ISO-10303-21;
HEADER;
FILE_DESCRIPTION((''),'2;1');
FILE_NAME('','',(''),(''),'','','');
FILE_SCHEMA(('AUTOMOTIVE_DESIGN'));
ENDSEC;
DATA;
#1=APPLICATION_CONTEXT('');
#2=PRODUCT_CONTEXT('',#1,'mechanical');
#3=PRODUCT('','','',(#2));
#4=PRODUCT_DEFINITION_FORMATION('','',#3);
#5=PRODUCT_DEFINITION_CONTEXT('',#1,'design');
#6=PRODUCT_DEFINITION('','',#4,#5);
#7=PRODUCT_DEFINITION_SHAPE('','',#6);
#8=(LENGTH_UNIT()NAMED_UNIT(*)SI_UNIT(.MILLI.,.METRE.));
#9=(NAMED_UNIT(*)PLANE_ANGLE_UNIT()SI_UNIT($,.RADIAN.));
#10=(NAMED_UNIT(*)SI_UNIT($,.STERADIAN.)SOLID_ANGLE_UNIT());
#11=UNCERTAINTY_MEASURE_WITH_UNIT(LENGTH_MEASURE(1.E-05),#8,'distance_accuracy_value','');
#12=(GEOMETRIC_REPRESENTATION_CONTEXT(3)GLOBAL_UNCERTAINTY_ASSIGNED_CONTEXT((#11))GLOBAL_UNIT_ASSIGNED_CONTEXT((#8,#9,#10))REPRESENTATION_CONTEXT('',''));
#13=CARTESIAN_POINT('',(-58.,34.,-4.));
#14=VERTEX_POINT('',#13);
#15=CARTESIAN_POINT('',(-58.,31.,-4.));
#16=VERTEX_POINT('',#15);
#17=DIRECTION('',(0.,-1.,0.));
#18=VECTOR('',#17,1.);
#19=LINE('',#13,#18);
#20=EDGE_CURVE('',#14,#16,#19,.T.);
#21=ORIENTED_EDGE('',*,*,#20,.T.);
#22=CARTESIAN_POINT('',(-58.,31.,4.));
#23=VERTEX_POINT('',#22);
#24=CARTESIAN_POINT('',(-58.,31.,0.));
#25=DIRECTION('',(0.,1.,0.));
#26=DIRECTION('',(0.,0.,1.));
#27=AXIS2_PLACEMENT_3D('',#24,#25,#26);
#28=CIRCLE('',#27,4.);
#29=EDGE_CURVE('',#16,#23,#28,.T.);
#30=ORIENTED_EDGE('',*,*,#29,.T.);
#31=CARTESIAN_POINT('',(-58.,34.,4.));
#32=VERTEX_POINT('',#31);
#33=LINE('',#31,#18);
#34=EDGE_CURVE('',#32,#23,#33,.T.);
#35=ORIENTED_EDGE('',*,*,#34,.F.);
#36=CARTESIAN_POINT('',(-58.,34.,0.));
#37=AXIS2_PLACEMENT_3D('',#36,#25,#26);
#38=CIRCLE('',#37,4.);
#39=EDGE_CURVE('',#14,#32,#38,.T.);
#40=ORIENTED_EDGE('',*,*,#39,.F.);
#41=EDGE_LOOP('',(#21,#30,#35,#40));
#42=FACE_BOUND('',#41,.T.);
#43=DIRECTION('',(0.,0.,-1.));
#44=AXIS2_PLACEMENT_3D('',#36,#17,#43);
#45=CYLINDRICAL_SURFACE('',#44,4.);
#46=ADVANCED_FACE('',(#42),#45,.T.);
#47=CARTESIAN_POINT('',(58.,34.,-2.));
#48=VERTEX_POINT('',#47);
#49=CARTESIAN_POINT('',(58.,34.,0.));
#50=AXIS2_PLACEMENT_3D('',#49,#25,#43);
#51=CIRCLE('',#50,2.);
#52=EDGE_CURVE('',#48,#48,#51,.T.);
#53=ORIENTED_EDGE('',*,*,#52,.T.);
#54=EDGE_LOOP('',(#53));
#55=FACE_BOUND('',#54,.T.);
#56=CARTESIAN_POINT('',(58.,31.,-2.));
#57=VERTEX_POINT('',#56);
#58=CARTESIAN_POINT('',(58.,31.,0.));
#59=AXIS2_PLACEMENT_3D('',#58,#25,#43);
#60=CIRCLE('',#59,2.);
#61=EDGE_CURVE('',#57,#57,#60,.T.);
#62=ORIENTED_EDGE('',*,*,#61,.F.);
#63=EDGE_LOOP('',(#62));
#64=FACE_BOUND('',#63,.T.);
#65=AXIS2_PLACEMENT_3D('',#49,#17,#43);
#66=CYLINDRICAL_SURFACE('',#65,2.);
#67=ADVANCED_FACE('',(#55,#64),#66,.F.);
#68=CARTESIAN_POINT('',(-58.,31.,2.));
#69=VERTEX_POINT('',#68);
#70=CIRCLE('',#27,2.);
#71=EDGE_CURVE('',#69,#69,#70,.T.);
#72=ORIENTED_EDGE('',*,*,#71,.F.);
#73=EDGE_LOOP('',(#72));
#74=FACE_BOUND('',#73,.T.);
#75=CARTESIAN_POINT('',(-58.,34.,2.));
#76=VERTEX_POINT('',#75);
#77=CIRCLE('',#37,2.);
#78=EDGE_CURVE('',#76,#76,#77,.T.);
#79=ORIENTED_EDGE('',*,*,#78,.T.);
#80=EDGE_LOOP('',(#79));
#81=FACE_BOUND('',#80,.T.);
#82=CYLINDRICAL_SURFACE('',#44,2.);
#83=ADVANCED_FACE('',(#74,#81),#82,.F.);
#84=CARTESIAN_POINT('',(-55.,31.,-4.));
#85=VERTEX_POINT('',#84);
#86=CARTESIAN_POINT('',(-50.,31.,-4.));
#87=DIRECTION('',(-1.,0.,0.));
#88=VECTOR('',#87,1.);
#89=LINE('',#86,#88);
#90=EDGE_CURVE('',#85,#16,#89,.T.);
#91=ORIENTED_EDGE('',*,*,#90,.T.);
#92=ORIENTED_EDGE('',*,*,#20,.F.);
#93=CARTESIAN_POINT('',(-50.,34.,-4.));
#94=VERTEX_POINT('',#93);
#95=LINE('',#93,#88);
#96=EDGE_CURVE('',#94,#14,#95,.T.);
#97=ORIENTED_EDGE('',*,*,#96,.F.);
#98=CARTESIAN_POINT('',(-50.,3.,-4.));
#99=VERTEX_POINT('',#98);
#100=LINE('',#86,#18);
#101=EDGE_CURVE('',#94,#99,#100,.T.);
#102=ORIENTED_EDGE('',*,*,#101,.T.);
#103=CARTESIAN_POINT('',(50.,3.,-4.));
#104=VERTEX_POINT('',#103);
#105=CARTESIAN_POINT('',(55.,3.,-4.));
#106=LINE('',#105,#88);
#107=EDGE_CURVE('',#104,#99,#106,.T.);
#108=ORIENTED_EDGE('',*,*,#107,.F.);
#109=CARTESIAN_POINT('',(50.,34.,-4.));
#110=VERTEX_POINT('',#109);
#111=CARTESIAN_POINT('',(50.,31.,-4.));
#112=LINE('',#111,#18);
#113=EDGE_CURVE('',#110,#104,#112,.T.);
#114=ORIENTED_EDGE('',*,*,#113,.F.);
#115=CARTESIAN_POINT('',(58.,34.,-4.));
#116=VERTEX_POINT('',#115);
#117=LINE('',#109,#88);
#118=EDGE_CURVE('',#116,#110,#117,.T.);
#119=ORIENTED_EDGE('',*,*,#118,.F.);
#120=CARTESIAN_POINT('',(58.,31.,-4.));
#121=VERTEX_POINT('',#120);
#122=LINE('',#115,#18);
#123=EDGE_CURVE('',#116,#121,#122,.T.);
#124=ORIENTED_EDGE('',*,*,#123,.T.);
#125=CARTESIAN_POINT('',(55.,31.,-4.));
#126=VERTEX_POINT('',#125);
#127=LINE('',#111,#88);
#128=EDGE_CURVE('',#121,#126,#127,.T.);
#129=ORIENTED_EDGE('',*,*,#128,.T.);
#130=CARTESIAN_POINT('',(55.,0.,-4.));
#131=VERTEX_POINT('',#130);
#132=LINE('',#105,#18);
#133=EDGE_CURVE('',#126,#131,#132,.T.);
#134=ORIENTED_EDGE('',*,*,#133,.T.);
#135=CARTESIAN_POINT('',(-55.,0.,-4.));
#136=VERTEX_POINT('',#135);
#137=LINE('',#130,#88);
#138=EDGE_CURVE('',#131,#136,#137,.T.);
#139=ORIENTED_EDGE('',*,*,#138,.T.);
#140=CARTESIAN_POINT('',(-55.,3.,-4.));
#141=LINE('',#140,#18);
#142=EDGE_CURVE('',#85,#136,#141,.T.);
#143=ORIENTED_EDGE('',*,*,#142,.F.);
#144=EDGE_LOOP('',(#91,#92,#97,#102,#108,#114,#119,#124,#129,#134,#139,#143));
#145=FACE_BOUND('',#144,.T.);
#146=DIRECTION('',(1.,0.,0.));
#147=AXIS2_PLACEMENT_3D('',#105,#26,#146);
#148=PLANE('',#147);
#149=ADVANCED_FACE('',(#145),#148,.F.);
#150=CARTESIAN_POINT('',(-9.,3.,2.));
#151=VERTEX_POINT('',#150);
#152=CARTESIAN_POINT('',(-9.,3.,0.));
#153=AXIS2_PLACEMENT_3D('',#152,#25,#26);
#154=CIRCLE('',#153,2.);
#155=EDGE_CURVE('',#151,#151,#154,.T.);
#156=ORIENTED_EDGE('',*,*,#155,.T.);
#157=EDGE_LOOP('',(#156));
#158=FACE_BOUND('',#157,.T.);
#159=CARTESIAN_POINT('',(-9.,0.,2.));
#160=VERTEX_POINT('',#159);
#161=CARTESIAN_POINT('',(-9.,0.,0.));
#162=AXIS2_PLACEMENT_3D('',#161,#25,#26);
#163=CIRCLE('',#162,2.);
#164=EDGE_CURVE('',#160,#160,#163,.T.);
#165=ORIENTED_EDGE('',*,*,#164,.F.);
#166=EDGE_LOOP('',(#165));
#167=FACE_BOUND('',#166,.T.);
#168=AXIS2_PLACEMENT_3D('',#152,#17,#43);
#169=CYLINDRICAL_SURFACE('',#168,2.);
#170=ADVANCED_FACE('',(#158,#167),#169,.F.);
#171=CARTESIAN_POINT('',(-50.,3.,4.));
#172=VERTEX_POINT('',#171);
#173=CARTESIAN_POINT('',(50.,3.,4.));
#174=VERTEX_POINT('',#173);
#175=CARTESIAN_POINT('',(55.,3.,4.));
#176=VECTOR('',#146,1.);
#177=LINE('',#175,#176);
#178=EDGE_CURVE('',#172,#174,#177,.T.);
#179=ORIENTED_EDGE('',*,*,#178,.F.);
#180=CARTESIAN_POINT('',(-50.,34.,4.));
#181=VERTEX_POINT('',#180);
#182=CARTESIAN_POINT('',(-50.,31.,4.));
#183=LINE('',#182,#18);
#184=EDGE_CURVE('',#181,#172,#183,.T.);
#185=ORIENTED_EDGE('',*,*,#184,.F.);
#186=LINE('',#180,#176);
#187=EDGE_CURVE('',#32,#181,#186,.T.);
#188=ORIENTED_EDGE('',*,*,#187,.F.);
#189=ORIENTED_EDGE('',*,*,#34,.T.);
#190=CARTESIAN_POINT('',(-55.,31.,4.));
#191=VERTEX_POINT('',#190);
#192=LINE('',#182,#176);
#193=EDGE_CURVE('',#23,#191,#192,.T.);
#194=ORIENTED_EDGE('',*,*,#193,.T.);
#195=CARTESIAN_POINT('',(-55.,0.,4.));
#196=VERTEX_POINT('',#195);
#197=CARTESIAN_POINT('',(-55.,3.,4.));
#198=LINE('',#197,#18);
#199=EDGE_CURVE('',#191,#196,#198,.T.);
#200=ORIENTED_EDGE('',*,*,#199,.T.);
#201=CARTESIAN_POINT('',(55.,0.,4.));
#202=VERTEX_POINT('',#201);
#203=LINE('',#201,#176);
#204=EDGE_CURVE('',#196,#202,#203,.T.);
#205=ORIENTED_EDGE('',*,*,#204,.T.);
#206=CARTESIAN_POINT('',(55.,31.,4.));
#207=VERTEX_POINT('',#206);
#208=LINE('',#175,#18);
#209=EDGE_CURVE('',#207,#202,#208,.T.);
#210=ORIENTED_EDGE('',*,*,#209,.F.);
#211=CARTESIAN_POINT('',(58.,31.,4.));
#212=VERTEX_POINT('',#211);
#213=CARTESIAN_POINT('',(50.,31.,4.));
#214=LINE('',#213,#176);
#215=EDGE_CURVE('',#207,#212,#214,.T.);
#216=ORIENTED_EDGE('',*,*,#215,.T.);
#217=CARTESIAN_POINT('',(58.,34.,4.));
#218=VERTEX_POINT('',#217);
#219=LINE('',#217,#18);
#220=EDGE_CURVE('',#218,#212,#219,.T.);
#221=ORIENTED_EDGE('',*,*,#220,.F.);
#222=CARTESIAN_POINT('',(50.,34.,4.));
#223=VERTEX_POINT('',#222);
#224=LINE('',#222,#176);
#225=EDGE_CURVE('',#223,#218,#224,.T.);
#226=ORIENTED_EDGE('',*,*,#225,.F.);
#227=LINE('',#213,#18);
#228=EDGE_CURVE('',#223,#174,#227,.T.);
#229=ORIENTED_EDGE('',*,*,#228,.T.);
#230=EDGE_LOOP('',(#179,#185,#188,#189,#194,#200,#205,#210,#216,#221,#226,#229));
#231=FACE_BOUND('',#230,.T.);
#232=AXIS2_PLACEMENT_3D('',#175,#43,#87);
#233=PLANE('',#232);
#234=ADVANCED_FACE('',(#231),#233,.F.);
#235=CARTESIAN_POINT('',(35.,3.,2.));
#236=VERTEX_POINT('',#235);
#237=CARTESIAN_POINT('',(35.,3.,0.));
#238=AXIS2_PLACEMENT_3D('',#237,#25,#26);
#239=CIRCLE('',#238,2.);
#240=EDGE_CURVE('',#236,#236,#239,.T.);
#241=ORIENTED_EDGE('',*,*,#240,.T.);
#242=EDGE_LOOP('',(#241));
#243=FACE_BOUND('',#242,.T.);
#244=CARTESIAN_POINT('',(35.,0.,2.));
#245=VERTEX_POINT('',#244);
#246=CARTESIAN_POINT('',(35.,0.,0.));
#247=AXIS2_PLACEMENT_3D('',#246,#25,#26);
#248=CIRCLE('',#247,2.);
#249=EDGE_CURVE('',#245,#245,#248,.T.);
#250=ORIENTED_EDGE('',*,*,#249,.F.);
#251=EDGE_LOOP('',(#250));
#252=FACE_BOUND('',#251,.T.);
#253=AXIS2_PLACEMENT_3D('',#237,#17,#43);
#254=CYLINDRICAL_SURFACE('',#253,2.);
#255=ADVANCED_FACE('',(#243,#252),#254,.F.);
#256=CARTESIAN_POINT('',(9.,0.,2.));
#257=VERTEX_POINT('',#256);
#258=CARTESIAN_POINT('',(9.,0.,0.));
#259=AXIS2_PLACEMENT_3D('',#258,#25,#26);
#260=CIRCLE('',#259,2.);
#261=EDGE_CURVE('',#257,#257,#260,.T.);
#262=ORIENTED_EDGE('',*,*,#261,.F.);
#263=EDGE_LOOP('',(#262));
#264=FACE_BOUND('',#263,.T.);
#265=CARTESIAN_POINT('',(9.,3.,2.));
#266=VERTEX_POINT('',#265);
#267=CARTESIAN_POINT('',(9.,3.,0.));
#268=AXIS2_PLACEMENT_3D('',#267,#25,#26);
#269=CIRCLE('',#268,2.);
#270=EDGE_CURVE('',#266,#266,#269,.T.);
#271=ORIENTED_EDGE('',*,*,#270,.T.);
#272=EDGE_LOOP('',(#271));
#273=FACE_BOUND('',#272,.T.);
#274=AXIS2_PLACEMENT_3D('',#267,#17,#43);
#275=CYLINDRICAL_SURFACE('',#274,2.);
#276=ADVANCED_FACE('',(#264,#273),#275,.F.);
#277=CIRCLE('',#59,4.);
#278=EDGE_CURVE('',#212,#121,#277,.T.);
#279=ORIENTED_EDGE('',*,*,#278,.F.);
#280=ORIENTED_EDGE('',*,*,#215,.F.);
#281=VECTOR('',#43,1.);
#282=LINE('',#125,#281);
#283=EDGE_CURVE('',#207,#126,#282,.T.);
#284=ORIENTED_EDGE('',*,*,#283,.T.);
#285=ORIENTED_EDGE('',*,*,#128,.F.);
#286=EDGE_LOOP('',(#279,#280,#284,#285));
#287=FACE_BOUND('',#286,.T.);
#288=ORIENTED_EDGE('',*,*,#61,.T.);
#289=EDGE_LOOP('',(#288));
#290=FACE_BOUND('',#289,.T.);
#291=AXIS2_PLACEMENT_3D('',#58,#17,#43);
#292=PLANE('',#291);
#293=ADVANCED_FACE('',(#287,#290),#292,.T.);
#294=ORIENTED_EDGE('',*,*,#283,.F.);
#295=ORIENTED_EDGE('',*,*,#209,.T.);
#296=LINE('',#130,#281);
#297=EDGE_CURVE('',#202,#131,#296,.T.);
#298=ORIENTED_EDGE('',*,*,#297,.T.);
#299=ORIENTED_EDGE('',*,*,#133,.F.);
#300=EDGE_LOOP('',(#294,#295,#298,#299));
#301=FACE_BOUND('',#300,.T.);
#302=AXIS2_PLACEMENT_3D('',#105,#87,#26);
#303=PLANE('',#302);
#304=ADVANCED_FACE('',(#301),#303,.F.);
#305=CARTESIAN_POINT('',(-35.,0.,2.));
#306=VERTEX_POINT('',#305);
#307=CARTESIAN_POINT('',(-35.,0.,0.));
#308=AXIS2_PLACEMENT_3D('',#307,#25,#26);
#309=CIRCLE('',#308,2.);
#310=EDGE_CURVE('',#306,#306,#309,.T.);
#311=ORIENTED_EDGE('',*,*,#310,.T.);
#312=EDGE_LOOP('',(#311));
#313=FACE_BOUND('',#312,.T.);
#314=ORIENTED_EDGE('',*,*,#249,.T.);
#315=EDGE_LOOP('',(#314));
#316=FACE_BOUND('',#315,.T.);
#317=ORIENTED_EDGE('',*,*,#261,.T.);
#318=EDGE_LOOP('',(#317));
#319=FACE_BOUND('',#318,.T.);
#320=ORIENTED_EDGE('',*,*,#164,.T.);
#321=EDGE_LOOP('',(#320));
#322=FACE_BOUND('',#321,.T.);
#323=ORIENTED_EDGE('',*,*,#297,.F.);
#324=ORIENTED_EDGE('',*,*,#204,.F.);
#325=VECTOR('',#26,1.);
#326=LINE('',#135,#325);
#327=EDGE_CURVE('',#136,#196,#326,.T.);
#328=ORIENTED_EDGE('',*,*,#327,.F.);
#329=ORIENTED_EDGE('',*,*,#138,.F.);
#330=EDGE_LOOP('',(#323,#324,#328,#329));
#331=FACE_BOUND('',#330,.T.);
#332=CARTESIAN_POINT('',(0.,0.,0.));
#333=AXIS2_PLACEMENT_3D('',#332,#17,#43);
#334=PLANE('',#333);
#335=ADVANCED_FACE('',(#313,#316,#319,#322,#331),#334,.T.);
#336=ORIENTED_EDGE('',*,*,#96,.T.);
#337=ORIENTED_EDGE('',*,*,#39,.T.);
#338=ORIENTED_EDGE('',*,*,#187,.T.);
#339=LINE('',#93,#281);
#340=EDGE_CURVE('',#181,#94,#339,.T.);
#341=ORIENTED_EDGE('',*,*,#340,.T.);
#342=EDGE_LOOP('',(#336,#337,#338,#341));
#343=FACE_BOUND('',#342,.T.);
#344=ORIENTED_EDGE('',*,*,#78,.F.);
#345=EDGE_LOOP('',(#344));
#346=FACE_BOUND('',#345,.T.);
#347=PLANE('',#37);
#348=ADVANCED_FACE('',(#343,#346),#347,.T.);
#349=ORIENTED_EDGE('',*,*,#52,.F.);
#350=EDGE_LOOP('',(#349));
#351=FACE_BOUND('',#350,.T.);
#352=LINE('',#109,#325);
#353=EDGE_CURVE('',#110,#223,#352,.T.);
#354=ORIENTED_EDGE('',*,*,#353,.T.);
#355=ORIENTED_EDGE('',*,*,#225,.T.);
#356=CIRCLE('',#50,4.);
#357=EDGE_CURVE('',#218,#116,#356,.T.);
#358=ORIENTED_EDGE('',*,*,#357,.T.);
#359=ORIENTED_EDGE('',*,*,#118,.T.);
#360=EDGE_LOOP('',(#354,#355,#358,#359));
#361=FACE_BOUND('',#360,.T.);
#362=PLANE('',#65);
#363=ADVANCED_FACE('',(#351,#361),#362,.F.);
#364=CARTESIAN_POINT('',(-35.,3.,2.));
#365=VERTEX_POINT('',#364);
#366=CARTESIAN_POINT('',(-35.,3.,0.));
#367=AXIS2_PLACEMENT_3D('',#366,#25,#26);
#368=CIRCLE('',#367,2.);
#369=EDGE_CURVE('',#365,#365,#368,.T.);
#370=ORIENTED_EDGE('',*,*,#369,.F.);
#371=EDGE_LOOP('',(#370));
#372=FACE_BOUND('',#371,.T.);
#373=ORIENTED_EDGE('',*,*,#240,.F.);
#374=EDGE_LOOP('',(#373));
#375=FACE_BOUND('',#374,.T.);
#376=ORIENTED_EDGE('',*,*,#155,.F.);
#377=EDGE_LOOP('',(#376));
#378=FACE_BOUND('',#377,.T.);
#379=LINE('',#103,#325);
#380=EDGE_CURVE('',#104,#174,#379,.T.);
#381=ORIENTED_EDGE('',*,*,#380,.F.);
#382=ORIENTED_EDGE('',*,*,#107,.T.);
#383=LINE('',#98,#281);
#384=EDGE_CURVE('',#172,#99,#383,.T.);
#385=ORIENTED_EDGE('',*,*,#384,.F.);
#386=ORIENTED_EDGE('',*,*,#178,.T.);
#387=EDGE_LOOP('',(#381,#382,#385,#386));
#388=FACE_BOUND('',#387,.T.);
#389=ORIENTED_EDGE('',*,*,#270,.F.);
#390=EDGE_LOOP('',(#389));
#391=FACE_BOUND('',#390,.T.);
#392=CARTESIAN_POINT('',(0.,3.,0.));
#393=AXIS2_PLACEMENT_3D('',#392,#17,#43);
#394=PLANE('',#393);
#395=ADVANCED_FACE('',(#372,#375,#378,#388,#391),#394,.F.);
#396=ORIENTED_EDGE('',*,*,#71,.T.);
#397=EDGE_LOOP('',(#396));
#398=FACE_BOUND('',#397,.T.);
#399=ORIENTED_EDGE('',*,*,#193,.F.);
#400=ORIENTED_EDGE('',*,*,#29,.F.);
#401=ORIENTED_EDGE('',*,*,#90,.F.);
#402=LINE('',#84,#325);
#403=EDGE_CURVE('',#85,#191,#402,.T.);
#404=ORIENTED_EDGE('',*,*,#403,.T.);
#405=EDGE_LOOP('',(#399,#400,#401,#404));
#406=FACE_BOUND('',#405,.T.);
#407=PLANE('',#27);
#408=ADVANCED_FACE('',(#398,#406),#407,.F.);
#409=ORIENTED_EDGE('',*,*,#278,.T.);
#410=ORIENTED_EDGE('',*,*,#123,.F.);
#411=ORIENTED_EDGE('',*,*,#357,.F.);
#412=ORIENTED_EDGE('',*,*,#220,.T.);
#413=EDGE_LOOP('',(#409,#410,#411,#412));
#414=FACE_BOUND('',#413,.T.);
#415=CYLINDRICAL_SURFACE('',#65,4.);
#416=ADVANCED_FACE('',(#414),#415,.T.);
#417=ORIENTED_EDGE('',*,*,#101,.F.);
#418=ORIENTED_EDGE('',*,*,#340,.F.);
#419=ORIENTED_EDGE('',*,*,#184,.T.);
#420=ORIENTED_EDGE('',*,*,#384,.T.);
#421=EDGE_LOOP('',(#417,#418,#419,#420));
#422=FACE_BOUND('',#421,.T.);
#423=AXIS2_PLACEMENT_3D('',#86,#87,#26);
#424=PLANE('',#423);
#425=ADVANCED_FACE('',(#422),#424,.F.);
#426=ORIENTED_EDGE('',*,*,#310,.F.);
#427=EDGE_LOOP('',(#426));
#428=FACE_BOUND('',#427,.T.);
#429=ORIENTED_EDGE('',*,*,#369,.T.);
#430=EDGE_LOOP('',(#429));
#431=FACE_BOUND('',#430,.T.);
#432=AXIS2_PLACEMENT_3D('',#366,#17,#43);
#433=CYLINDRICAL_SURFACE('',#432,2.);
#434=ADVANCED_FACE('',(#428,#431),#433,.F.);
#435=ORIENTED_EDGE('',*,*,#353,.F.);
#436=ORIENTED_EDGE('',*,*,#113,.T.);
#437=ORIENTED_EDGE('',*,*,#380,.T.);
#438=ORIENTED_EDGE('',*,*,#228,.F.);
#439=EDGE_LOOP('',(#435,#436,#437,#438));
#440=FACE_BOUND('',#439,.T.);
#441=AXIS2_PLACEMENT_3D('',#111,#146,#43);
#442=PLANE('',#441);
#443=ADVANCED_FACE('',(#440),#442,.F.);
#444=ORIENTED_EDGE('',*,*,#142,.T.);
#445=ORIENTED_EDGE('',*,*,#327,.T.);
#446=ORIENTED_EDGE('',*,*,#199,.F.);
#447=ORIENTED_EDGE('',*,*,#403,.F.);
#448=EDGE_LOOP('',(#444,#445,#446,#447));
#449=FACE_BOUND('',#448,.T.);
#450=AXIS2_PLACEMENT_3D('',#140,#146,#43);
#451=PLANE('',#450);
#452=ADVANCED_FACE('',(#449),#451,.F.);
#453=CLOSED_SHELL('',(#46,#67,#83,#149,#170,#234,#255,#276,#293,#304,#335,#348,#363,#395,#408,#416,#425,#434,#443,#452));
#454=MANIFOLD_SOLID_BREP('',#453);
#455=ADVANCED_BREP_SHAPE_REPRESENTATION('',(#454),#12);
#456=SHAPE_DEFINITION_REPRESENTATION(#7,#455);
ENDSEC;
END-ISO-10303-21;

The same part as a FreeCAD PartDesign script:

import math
import FreeCAD as App
import Part
import Sketcher


def add_polygon(sketch, points):
    """Adds a closed chain of lines whose ends are joined by coincident constraints."""
    first, n = sketch.GeometryCount, len(points)
    for a, b in zip(points, points[1:] + points[:1]):
        sketch.addGeometry(Part.LineSegment(App.Vector(*a, 0), App.Vector(*b, 0)), False)
    for i in range(n):
        sketch.addConstraint(Sketcher.Constraint("Coincident", first + i, 2, first + (i + 1) % n, 1))

doc = App.newDocument("Part")
body = doc.addObject("PartDesign::Body", "Body")

sketch1 = body.newObject("Sketcher::SketchObject", "Sketch")
sketch1.AttachmentSupport = (doc.getObject("XZ_Plane"), [""])
sketch1.MapMode = "FlatFace"
add_polygon(sketch1, [(-55, -4), (-55, 4), (55, 4), (55, -4)])
sketch1.addGeometry(Part.Circle(App.Vector(-35, 0, 0), App.Vector(0, 0, 1), 2), False)
sketch1.addGeometry(Part.Circle(App.Vector(-9, 0, 0), App.Vector(0, 0, 1), 2), False)
sketch1.addGeometry(Part.Circle(App.Vector(9, 0, 0), App.Vector(0, 0, 1), 2), False)
sketch1.addGeometry(Part.Circle(App.Vector(35, 0, 0), App.Vector(0, 0, 1), 2), False)
sketch1.addConstraint([
    Sketcher.Constraint("Vertical", 0),
    Sketcher.Constraint("Horizontal", 1),
    Sketcher.Constraint("Vertical", 2),
    Sketcher.Constraint("Horizontal", 3),
    Sketcher.Constraint("Equal", 4, 5),
    Sketcher.Constraint("Equal", 5, 6),
    Sketcher.Constraint("Equal", 6, 7),
    Sketcher.Constraint("Symmetric", 5, 3, 6, 3, -1, 1),
    Sketcher.Constraint("Symmetric", 4, 3, 7, 3, -1, 1),
    Sketcher.Constraint("Symmetric", 0, 2, 2, 2, -1, 1),
    Sketcher.Constraint("PointOnObject", 4, 3, -1),
    Sketcher.Constraint("PointOnObject", 5, 3, -1),
    Sketcher.Constraint("Diameter", 4, 4.0),
    Sketcher.Constraint("DistanceX", 1, 1, 1, 2, 110.0),
    Sketcher.Constraint("DistanceY", 0, 1, 0, 2, 8.0),
    Sketcher.Constraint("DistanceX", 4, 3, -1, 1, 35.0),
    Sketcher.Constraint("DistanceX", 5, 3, -1, 1, 9.0),
])
pad1 = body.newObject("PartDesign::Pad", "Pad")
pad1.Profile = sketch1
pad1.Length = 3
pad1.Reversed = True

sketch2 = body.newObject("Sketcher::SketchObject", "Sketch001")
sketch2.AttachmentSupport = (doc.getObject("XZ_Plane"), [""])
sketch2.MapMode = "FlatFace"
sketch2.AttachmentOffset = App.Placement(App.Vector(0, 0, -3), App.Rotation())
add_polygon(sketch2, [(-55, -4), (-55, 4), (-50, 4), (-50, -4)])
add_polygon(sketch2, [(50, -4), (50, 4), (55, 4), (55, -4)])
sketch2.addConstraint([
    Sketcher.Constraint("Vertical", 0),
    Sketcher.Constraint("Horizontal", 1),
    Sketcher.Constraint("Vertical", 2),
    Sketcher.Constraint("Horizontal", 3),
    Sketcher.Constraint("Vertical", 4),
    Sketcher.Constraint("Horizontal", 5),
    Sketcher.Constraint("Vertical", 6),
    Sketcher.Constraint("Horizontal", 7),
    Sketcher.Constraint("Symmetric", 2, 2, 4, 2, -1, 1),
    Sketcher.Constraint("Symmetric", 0, 2, 6, 2, -1, 1),
    Sketcher.Constraint("Horizontal", 1, 2, 4, 2),
    Sketcher.Constraint("DistanceX", 1, 1, 1, 2, 5.0),
    Sketcher.Constraint("DistanceY", 0, 1, 0, 2, 8.0),
    Sketcher.Constraint("DistanceX", 0, 2, -1, 1, 55.0),
])
pad2 = body.newObject("PartDesign::Pad", "Pad001")
pad2.Profile = sketch2
pad2.Length = 28
pad2.Reversed = True

sketch3 = body.newObject("Sketcher::SketchObject", "Sketch002")
sketch3.AttachmentSupport = (doc.getObject("XZ_Plane"), [""])
sketch3.MapMode = "FlatFace"
sketch3.AttachmentOffset = App.Placement(App.Vector(0, 0, -31), App.Rotation())
sketch3.addGeometry([
    Part.LineSegment(App.Vector(-50, -4, 0), App.Vector(-58, -4, 0)),
    Part.ArcOfCircle(Part.Circle(App.Vector(-58, 0, 0), App.Vector(0, 0, 1), 4), math.radians(90), math.radians(270)),
    Part.LineSegment(App.Vector(-58, 4, 0), App.Vector(-50, 4, 0)),
    Part.LineSegment(App.Vector(-50, 4, 0), App.Vector(-50, -4, 0)),
    Part.Circle(App.Vector(-58, 0, 0), App.Vector(0, 0, 1), 2),
    Part.LineSegment(App.Vector(58, -4, 0), App.Vector(50, -4, 0)),
    Part.LineSegment(App.Vector(50, -4, 0), App.Vector(50, 4, 0)),
    Part.LineSegment(App.Vector(50, 4, 0), App.Vector(58, 4, 0)),
    Part.ArcOfCircle(Part.Circle(App.Vector(58, 0, 0), App.Vector(0, 0, 1), 4), math.radians(-90), math.radians(90)),
    Part.Circle(App.Vector(58, 0, 0), App.Vector(0, 0, 1), 2),
], False)
sketch3.addConstraint([
    Sketcher.Constraint("Tangent", 0, 2, 1, 2),
    Sketcher.Constraint("Tangent", 1, 1, 2, 1),
    Sketcher.Constraint("Coincident", 2, 2, 3, 1),
    Sketcher.Constraint("Coincident", 3, 2, 0, 1),
    Sketcher.Constraint("Coincident", 5, 2, 6, 1),
    Sketcher.Constraint("Coincident", 6, 2, 7, 1),
    Sketcher.Constraint("Tangent", 7, 2, 8, 2),
    Sketcher.Constraint("Tangent", 8, 1, 5, 1),
    Sketcher.Constraint("Horizontal", 0),
    Sketcher.Constraint("Horizontal", 2),
    Sketcher.Constraint("Vertical", 3),
    Sketcher.Constraint("Horizontal", 5),
    Sketcher.Constraint("Vertical", 6),
    Sketcher.Constraint("Horizontal", 7),
    Sketcher.Constraint("Coincident", 4, 3, 1, 3),
    Sketcher.Constraint("Coincident", 9, 3, 8, 3),
    Sketcher.Constraint("Equal", 1, 8),
    Sketcher.Constraint("Equal", 4, 9),
    Sketcher.Constraint("Symmetric", 1, 3, 8, 3, -1, 1),
    Sketcher.Constraint("Symmetric", 3, 2, 5, 2, -2),
    Sketcher.Constraint("Equal", 7, 3),
    Sketcher.Constraint("Diameter", 4, 4.0),
    Sketcher.Constraint("Radius", 1, 4.0),
    Sketcher.Constraint("DistanceX", 1, 3, -1, 1, 58.0),
])
pad3 = body.newObject("PartDesign::Pad", "Pad002")
pad3.Profile = sketch3
pad3.Length = 3
pad3.Reversed = True

doc.recompute()
